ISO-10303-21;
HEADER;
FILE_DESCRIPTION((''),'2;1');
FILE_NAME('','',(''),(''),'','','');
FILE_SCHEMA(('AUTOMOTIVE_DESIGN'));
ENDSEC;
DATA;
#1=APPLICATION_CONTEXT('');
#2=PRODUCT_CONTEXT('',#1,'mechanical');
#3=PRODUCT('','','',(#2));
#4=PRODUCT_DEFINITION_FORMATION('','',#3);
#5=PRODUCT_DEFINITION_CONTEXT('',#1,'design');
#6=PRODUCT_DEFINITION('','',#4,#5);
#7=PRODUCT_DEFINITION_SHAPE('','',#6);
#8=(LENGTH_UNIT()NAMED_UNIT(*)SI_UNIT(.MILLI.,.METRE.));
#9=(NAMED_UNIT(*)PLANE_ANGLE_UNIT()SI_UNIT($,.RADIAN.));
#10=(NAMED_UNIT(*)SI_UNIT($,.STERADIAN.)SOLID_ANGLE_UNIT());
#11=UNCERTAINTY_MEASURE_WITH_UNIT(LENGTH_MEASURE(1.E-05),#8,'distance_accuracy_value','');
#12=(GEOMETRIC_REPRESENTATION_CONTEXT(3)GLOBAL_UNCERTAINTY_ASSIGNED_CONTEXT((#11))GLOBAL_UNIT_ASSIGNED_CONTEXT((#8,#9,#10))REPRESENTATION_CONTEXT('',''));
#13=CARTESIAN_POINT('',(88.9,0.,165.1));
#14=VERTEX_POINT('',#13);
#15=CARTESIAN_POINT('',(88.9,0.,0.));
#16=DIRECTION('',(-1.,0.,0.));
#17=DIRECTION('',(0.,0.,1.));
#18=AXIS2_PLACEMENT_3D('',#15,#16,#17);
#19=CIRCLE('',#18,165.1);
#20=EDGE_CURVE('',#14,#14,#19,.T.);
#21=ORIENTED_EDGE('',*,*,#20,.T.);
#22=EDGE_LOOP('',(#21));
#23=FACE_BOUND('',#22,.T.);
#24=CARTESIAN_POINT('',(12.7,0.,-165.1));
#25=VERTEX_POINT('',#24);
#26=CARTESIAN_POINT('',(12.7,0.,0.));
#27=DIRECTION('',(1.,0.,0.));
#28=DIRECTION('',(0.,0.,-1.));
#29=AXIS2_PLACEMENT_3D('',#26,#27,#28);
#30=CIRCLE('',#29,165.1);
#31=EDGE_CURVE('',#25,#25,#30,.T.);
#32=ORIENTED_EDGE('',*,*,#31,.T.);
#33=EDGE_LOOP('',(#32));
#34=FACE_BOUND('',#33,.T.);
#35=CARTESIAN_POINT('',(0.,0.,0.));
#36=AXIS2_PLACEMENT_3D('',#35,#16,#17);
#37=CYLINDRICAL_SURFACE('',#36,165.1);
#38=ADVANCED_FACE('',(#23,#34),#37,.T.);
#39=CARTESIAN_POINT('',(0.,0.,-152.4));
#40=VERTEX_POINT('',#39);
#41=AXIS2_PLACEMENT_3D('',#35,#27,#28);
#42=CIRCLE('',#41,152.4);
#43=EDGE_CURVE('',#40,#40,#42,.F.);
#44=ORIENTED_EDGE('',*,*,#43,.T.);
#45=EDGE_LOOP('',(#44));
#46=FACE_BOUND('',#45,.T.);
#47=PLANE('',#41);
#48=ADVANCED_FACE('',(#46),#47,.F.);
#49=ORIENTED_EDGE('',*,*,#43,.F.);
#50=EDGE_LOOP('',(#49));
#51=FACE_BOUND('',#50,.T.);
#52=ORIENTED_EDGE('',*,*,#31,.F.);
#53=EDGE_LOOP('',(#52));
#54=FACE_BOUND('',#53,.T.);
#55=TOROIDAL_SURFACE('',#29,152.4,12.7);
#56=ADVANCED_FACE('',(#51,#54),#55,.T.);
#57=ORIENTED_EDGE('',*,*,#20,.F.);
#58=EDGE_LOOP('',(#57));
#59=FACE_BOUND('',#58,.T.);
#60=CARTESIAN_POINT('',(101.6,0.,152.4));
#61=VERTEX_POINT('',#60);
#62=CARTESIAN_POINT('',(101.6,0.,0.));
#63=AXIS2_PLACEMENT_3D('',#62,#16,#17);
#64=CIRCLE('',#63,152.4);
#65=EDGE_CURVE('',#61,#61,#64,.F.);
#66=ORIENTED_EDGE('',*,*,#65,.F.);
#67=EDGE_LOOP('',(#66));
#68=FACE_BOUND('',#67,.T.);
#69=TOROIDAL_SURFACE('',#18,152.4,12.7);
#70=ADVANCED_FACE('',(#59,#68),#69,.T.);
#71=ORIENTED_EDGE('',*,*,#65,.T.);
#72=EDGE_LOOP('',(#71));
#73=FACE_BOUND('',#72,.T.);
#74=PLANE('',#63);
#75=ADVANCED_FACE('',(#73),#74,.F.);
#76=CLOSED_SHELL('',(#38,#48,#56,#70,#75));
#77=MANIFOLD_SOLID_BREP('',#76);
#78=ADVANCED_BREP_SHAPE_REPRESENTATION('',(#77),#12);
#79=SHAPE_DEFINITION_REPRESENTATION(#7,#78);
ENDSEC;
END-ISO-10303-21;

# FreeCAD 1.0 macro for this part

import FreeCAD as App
import Part
import Sketcher
from FreeCAD import Vector
Q = App.Units.Quantity


def edges_at(feature, points):
    """Names of the edges that pass closest to the given points."""
    edges = feature.Shape.Edges
    near = lambda p: min(range(len(edges)), key=lambda i: edges[i].distToShape(Part.Vertex(*p))[0])
    return sorted({f"Edge{near(p) + 1}" for p in points})


def add_polygon(sketch, points):
    """Adds a closed chain of lines whose ends are joined by coincident constraints."""
    first, n = sketch.GeometryCount, len(points)
    for a, b in zip(points, points[1:] + points[:1]):
        sketch.addGeometry(Part.LineSegment(App.Vector(*a, 0), App.Vector(*b, 0)), False)
    for i in range(n):
        sketch.addConstraint(Sketcher.Constraint("Coincident", first + i, 2, first + (i + 1) % n, 1))

doc = App.newDocument("Part")
body = doc.addObject("PartDesign::Body", "Body")

# Sketch on XY plane
sketch1 = body.newObject("Sketcher::SketchObject", "Sketch")
sketch1.AttachmentSupport = (doc.getObject("XY_Plane"), [""])
sketch1.MapMode = "FlatFace"
add_polygon(sketch1, [(0, 165), (0, 0), (102, 0), (102, 165)])  # lines 0-3
sketch1.addConstraint([
    Sketcher.Constraint("Vertical", 0),
    Sketcher.Constraint("Horizontal", 1),
    Sketcher.Constraint("Vertical", 2),
    Sketcher.Constraint("Horizontal", 3),
    Sketcher.Constraint("Coincident", 0, 2, -1, 1),
    Sketcher.Constraint("DistanceX", 1, 1, 1, 2, Q("4 in")),
    Sketcher.Constraint("DistanceY", 0, 2, 0, 1, Q("6.5 in")),
])
revolution = body.newObject("PartDesign::Revolution", "Revolution")
revolution.Profile = sketch1
revolution.ReferenceAxis = (sketch1, ["H_Axis"])
revolution.Angle = 360
doc.recompute()

fillet = body.newObject("PartDesign::Fillet", "Fillet")
fillet.Base = (revolution, edges_at(revolution, [(101.6, 0, -165.1), (0, 0, -165.1)]))
fillet.Radius = Q("0.5 in")

doc.recompute()
